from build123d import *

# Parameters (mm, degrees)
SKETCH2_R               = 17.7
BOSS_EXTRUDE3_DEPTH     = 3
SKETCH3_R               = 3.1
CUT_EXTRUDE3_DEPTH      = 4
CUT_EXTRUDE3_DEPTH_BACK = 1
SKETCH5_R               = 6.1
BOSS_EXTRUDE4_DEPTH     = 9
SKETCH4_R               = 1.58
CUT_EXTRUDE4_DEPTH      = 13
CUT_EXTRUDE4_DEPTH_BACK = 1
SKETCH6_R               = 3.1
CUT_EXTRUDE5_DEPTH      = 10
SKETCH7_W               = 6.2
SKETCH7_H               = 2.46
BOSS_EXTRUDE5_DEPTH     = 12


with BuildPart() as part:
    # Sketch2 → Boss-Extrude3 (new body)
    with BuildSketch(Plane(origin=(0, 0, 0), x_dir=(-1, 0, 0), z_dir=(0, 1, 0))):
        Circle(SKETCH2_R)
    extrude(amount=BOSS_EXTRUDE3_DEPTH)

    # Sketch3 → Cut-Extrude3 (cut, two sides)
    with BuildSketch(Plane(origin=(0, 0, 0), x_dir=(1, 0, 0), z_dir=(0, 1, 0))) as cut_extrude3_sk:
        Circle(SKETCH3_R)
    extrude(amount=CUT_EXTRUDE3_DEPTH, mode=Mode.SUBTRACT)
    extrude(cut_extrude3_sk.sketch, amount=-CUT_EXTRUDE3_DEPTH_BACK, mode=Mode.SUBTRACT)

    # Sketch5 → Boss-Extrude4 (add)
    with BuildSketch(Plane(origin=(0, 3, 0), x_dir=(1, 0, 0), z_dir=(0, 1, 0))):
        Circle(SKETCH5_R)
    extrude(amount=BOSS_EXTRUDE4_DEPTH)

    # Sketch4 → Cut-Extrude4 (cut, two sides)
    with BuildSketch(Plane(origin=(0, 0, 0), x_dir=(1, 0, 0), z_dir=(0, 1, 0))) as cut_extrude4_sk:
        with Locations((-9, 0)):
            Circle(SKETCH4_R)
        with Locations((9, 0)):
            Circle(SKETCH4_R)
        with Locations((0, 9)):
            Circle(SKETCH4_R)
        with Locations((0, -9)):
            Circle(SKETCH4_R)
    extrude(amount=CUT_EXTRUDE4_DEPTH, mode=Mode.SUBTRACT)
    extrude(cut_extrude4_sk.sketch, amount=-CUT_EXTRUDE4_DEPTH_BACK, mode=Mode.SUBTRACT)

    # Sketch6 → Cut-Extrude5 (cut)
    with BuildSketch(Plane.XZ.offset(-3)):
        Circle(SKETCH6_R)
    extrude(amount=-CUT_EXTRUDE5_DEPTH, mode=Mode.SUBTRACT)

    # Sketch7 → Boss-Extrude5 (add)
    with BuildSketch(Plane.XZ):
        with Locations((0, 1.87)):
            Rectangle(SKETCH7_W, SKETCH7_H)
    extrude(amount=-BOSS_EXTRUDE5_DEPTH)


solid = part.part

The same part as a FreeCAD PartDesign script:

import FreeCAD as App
import Part
import Sketcher
from FreeCAD import Vector
Q = App.Units.Quantity


def add_polygon(sketch, points):
    """Adds a closed chain of lines whose ends are joined by coincident constraints."""
    first, n = sketch.GeometryCount, len(points)
    for a, b in zip(points, points[1:] + points[:1]):
        sketch.addGeometry(Part.LineSegment(App.Vector(*a, 0), App.Vector(*b, 0)), False)
    for i in range(n):
        sketch.addConstraint(Sketcher.Constraint("Coincident", first + i, 2, first + (i + 1) % n, 1))

doc = App.newDocument("Part")
body = doc.addObject("PartDesign::Body", "Body")

# Sketch on XZ plane
sketch1 = body.newObject("Sketcher::SketchObject", "Sketch")
sketch1.AttachmentSupport = (doc.getObject("XZ_Plane"), [""])
sketch1.MapMode = "FlatFace"
sketch1.addGeometry(Part.Circle(Vector(0, 0, 0), Vector(0, 0, 1), 18), False)
sketch1.addConstraint([
    Sketcher.Constraint("Coincident", 0, 3, -1, 1),
    Sketcher.Constraint("Diameter", 0, Q("35.4 mm")),
])
pad1 = body.newObject("PartDesign::Pad", "Pad")
pad1.Profile = sketch1
pad1.Length = 3
pad1.Reversed = True

# Sketch on XZ plane
sketch2 = body.newObject("Sketcher::SketchObject", "Sketch001")
sketch2.AttachmentSupport = (doc.getObject("XZ_Plane"), [""])
sketch2.MapMode = "FlatFace"
sketch2.addGeometry(Part.Circle(Vector(0, 0, 0), Vector(0, 0, 1), 3.1), False)
sketch2.addConstraint([
    Sketcher.Constraint("Coincident", 0, 3, -1, 1),
    Sketcher.Constraint("Diameter", 0, Q("6.2 mm")),
])
pocket1 = body.newObject("PartDesign::Pocket", "Pocket")
pocket1.Profile = sketch2
pocket1.Type = "ThroughAll"
pocket1.Midplane = True

# Sketch on XZ plane
sketch3 = body.newObject("Sketcher::SketchObject", "Sketch002")
sketch3.AttachmentSupport = (doc.getObject("XZ_Plane"), [""])
sketch3.MapMode = "FlatFace"
sketch3.AttachmentOffset = App.Placement(Vector(0, 0, -3), App.Rotation())
sketch3.addGeometry(Part.Circle(Vector(0, 0, 0), Vector(0, 0, 1), 6), False)
sketch3.addConstraint([
    Sketcher.Constraint("Coincident", 0, 3, -1, 1),
    Sketcher.Constraint("Diameter", 0, Q("12.2 mm")),
])
pad2 = body.newObject("PartDesign::Pad", "Pad001")
pad2.Profile = sketch3
pad2.Length = 9
pad2.Reversed = True

# Sketch on XZ plane
sketch4 = body.newObject("Sketcher::SketchObject", "Sketch003")
sketch4.AttachmentSupport = (doc.getObject("XZ_Plane"), [""])
sketch4.MapMode = "FlatFace"
sketch4.addGeometry([
    Part.Circle(Vector(-9, 0, 0), Vector(0, 0, 1), 1.6),
    Part.Circle(Vector(9, 0, 0), Vector(0, 0, 1), 1.6),
    Part.Circle(Vector(0, -9, 0), Vector(0, 0, 1), 1.6),
    Part.Circle(Vector(0, 9, 0), Vector(0, 0, 1), 1.6),
], False)
sketch4.addConstraint([
    Sketcher.Constraint("Equal", 0, 1),
    Sketcher.Constraint("Equal", 1, 2),
    Sketcher.Constraint("Equal", 2, 3),
    Sketcher.Constraint("Symmetric", 0, 3, 1, 3, -1, 1),
    Sketcher.Constraint("Symmetric", 2, 3, 3, 3, -1, 1),
    Sketcher.Constraint("PointOnObject", 0, 3, -1),
    Sketcher.Constraint("PointOnObject", 2, 3, -2),
    Sketcher.Constraint("Diameter", 0, Q("3.16 mm")),
    Sketcher.Constraint("DistanceX", 0, 3, -1, 1, Q("9 mm")),
    Sketcher.Constraint("DistanceY", 2, 3, -1, 1, Q("9 mm")),
])
pocket2 = body.newObject("PartDesign::Pocket", "Pocket001")
pocket2.Profile = sketch4
pocket2.Type = "ThroughAll"
pocket2.Midplane = True

# Sketch on XZ plane
sketch5 = body.newObject("Sketcher::SketchObject", "Sketch004")
sketch5.AttachmentSupport = (doc.getObject("XZ_Plane"), [""])
sketch5.MapMode = "FlatFace"
sketch5.AttachmentOffset = App.Placement(Vector(0, 0, -3), App.Rotation())
sketch5.addGeometry(Part.Circle(Vector(0, 0, 0), Vector(0, 0, 1), 3.1), False)
sketch5.addConstraint([
    Sketcher.Constraint("Coincident", 0, 3, -1, 1),
    Sketcher.Constraint("Diameter", 0, Q("6.2 mm")),
])
pocket3 = body.newObject("PartDesign::Pocket", "Pocket002")
pocket3.Profile = sketch5
pocket3.Length = 10

# Sketch on XZ plane
sketch6 = body.newObject("Sketcher::SketchObject", "Sketch005")
sketch6.AttachmentSupport = (doc.getObject("XZ_Plane"), [""])
sketch6.MapMode = "FlatFace"
add_polygon(sketch6, [(-3.1, 3.1), (-3.1, 0.6), (3.1, 0.6), (3.1, 3.1)])  # lines 0-3
sketch6.addConstraint([
    Sketcher.Constraint("Vertical", 0),
    Sketcher.Constraint("Horizontal", 1),
    Sketcher.Constraint("Vertical", 2),
    Sketcher.Constraint("Horizontal", 3),
    Sketcher.Constraint("DistanceX", 1, 1, 1, 2, Q("6.2 mm")),
    Sketcher.Constraint("DistanceY", 0, 2, 0, 1, Q("2.46 mm")),
    Sketcher.Constraint("DistanceX", 0, 2, -1, 1, Q("3.1 mm")),
    Sketcher.Constraint("DistanceY", -1, 1, 2, 2, Q("3.1 mm")),
])
pad3 = body.newObject("PartDesign::Pad", "Pad002")
pad3.Profile = sketch6
pad3.Length = 12
pad3.Reversed = True

doc.recompute()
